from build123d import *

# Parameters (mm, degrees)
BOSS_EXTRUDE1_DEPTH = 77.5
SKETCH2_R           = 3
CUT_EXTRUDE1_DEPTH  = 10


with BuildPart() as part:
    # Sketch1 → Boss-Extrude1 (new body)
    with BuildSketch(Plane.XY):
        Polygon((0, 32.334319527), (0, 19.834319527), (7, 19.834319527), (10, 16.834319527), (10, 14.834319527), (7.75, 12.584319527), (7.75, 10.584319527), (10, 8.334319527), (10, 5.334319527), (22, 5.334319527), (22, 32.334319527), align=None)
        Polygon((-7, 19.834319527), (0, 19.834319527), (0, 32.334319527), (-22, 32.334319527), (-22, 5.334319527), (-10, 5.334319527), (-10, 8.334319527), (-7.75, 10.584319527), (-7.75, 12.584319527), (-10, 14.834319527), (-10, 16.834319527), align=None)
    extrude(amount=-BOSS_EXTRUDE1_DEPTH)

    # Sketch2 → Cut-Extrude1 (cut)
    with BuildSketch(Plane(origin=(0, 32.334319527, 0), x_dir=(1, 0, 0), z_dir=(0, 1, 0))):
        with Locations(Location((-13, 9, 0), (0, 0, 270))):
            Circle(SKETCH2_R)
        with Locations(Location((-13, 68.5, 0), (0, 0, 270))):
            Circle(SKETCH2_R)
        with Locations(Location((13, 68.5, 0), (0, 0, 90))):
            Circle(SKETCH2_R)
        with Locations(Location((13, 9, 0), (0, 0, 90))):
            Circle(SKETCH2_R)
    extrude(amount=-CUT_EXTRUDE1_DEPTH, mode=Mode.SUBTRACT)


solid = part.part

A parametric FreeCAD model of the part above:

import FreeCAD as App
import Part
import Sketcher
from FreeCAD import Vector

doc = App.newDocument("Part")
body = doc.addObject("PartDesign::Body", "Body")

sketch1 = body.newObject("Sketcher::SketchObject", "Sketch")
sketch1.AttachmentSupport = (doc.getObject("XY_Plane"), [""])
sketch1.MapMode = "FlatFace"
sketch1.addGeometry([
    Part.LineSegment(Vector(7, 19.8, 0), Vector(10, 16.8, 0)),
    Part.LineSegment(Vector(10, 16.8, 0), Vector(10, 14.8, 0)),
    Part.LineSegment(Vector(10, 14.8, 0), Vector(7.8, 12.6, 0)),
    Part.LineSegment(Vector(7.8, 12.6, 0), Vector(7.8, 10.6, 0)),
    Part.LineSegment(Vector(7.8, 10.6, 0), Vector(10, 8.3, 0)),
    Part.LineSegment(Vector(10, 8.3, 0), Vector(10, 5.3, 0)),
    Part.LineSegment(Vector(10, 5.3, 0), Vector(22, 5.3, 0)),
    Part.LineSegment(Vector(22, 5.3, 0), Vector(22, 32.3, 0)),
    Part.LineSegment(Vector(22, 32.3, 0), Vector(-22, 32.3, 0)),
    Part.LineSegment(Vector(-22, 32.3, 0), Vector(-22, 5.3, 0)),
    Part.LineSegment(Vector(-22, 5.3, 0), Vector(-10, 5.3, 0)),
    Part.LineSegment(Vector(-10, 5.3, 0), Vector(-10, 8.3, 0)),
    Part.LineSegment(Vector(-10, 8.3, 0), Vector(-7.8, 10.6, 0)),
    Part.LineSegment(Vector(-7.8, 10.6, 0), Vector(-7.8, 12.6, 0)),
    Part.LineSegment(Vector(-7.8, 12.6, 0), Vector(-10, 14.8, 0)),
    Part.LineSegment(Vector(-10, 14.8, 0), Vector(-10, 16.8, 0)),
    Part.LineSegment(Vector(-10, 16.8, 0), Vector(-7, 19.8, 0)),
    Part.LineSegment(Vector(-7, 19.8, 0), Vector(7, 19.8, 0)),
], False)
sketch1.addConstraint([
    Sketcher.Constraint("Coincident", 0, 2, 1, 1),
    Sketcher.Constraint("Coincident", 1, 2, 2, 1),
    Sketcher.Constraint("Coincident", 2, 2, 3, 1),
    Sketcher.Constraint("Coincident", 3, 2, 4, 1),
    Sketcher.Constraint("Coincident", 4, 2, 5, 1),
    Sketcher.Constraint("Coincident", 5, 2, 6, 1),
    Sketcher.Constraint("Coincident", 6, 2, 7, 1),
    Sketcher.Constraint("Coincident", 7, 2, 8, 1),
    Sketcher.Constraint("Coincident", 8, 2, 9, 1),
    Sketcher.Constraint("Coincident", 9, 2, 10, 1),
    Sketcher.Constraint("Coincident", 10, 2, 11, 1),
    Sketcher.Constraint("Coincident", 11, 2, 12, 1),
    Sketcher.Constraint("Coincident", 12, 2, 13, 1),
    Sketcher.Constraint("Coincident", 13, 2, 14, 1),
    Sketcher.Constraint("Coincident", 14, 2, 15, 1),
    Sketcher.Constraint("Coincident", 15, 2, 16, 1),
    Sketcher.Constraint("Coincident", 16, 2, 17, 1),
    Sketcher.Constraint("Coincident", 17, 2, 0, 1),
    Sketcher.Constraint("Vertical", 1),
    Sketcher.Constraint("Vertical", 3),
    Sketcher.Constraint("Vertical", 5),
    Sketcher.Constraint("Horizontal", 6),
    Sketcher.Constraint("Vertical", 7),
    Sketcher.Constraint("Horizontal", 8),
    Sketcher.Constraint("Vertical", 9),
    Sketcher.Constraint("Horizontal", 10),
    Sketcher.Constraint("Vertical", 11),
    Sketcher.Constraint("Vertical", 13),
    Sketcher.Constraint("Vertical", 15),
    Sketcher.Constraint("Horizontal", 17),
    Sketcher.Constraint("Symmetric", 6, 2, 9, 2, -2),
    Sketcher.Constraint("Symmetric", 4, 2, 11, 2, -2),
    Sketcher.Constraint("Symmetric", 3, 2, 12, 2, -2),
    Sketcher.Constraint("Symmetric", 1, 2, 14, 2, -2),
    Sketcher.Constraint("Perpendicular", 0, 2),
    Sketcher.Constraint("Perpendicular", 2, 4),
    Sketcher.Constraint("Perpendicular", 4, 12),
    Sketcher.Constraint("Perpendicular", 12, 14),
    Sketcher.Constraint("Perpendicular", 14, 16),
    Sketcher.Constraint("Horizontal", 0, 2, 15, 2),
    Sketcher.Constraint("Vertical", 1, 2, 4, 2),
    Sketcher.Constraint("Equal", 1, 3),
    Sketcher.Constraint("DistanceX", 6, 1, 6, 2, 12.0),
    Sketcher.Constraint("DistanceX", 8, 2, 8, 1, 44.0),
    Sketcher.Constraint("DistanceX", 17, 1, 17, 2, 14.0),
    Sketcher.Constraint("DistanceY", 1, 2, 1, 1, 2.0),
    Sketcher.Constraint("DistanceY", 5, 2, 5, 1, 3.0),
    Sketcher.Constraint("DistanceY", 7, 1, 7, 2, 27.0),
    Sketcher.Constraint("DistanceY", 4, 2, 1, 2, 6.5),
    Sketcher.Constraint("DistanceY", -1, 1, 0, 2, 16.83432),
])
pad1 = body.newObject("PartDesign::Pad", "Pad")
pad1.Profile = sketch1
pad1.Length = 77.5
pad1.Reversed = True

sketch2 = body.newObject("Sketcher::SketchObject", "Sketch001")
sketch2.AttachmentSupport = (doc.getObject("XZ_Plane"), [""])
sketch2.MapMode = "FlatFace"
sketch2.AttachmentOffset = App.Placement(Vector(0, 0, -32.33432), App.Rotation())
sketch2.addGeometry([
    Part.Circle(Vector(-13, -9, 0), Vector(0, 0, 1), 3),
    Part.Circle(Vector(-13, -68.5, 0), Vector(0, 0, 1), 3),
    Part.Circle(Vector(13, -68.5, 0), Vector(0, 0, 1), 3),
    Part.Circle(Vector(13, -9, 0), Vector(0, 0, 1), 3),
], False)
sketch2.addConstraint([
    Sketcher.Constraint("Equal", 0, 1),
    Sketcher.Constraint("Equal", 1, 2),
    Sketcher.Constraint("Equal", 2, 3),
    Sketcher.Constraint("Symmetric", 1, 3, 2, 3, -2),
    Sketcher.Constraint("Symmetric", 0, 3, 3, 3, -2),
    Sketcher.Constraint("Vertical", 0, 3, 1, 3),
    Sketcher.Constraint("Diameter", 0, 6.0),
    Sketcher.Constraint("DistanceX", 0, 3, -1, 1, 13.0),
    Sketcher.Constraint("DistanceY", 0, 3, -1, 1, 9.0),
    Sketcher.Constraint("DistanceY", 1, 3, -1, 1, 68.5),
])
pocket1 = body.newObject("PartDesign::Pocket", "Pocket")
pocket1.Profile = sketch2
pocket1.Length = 10
pocket1.Reversed = True

doc.recompute()
